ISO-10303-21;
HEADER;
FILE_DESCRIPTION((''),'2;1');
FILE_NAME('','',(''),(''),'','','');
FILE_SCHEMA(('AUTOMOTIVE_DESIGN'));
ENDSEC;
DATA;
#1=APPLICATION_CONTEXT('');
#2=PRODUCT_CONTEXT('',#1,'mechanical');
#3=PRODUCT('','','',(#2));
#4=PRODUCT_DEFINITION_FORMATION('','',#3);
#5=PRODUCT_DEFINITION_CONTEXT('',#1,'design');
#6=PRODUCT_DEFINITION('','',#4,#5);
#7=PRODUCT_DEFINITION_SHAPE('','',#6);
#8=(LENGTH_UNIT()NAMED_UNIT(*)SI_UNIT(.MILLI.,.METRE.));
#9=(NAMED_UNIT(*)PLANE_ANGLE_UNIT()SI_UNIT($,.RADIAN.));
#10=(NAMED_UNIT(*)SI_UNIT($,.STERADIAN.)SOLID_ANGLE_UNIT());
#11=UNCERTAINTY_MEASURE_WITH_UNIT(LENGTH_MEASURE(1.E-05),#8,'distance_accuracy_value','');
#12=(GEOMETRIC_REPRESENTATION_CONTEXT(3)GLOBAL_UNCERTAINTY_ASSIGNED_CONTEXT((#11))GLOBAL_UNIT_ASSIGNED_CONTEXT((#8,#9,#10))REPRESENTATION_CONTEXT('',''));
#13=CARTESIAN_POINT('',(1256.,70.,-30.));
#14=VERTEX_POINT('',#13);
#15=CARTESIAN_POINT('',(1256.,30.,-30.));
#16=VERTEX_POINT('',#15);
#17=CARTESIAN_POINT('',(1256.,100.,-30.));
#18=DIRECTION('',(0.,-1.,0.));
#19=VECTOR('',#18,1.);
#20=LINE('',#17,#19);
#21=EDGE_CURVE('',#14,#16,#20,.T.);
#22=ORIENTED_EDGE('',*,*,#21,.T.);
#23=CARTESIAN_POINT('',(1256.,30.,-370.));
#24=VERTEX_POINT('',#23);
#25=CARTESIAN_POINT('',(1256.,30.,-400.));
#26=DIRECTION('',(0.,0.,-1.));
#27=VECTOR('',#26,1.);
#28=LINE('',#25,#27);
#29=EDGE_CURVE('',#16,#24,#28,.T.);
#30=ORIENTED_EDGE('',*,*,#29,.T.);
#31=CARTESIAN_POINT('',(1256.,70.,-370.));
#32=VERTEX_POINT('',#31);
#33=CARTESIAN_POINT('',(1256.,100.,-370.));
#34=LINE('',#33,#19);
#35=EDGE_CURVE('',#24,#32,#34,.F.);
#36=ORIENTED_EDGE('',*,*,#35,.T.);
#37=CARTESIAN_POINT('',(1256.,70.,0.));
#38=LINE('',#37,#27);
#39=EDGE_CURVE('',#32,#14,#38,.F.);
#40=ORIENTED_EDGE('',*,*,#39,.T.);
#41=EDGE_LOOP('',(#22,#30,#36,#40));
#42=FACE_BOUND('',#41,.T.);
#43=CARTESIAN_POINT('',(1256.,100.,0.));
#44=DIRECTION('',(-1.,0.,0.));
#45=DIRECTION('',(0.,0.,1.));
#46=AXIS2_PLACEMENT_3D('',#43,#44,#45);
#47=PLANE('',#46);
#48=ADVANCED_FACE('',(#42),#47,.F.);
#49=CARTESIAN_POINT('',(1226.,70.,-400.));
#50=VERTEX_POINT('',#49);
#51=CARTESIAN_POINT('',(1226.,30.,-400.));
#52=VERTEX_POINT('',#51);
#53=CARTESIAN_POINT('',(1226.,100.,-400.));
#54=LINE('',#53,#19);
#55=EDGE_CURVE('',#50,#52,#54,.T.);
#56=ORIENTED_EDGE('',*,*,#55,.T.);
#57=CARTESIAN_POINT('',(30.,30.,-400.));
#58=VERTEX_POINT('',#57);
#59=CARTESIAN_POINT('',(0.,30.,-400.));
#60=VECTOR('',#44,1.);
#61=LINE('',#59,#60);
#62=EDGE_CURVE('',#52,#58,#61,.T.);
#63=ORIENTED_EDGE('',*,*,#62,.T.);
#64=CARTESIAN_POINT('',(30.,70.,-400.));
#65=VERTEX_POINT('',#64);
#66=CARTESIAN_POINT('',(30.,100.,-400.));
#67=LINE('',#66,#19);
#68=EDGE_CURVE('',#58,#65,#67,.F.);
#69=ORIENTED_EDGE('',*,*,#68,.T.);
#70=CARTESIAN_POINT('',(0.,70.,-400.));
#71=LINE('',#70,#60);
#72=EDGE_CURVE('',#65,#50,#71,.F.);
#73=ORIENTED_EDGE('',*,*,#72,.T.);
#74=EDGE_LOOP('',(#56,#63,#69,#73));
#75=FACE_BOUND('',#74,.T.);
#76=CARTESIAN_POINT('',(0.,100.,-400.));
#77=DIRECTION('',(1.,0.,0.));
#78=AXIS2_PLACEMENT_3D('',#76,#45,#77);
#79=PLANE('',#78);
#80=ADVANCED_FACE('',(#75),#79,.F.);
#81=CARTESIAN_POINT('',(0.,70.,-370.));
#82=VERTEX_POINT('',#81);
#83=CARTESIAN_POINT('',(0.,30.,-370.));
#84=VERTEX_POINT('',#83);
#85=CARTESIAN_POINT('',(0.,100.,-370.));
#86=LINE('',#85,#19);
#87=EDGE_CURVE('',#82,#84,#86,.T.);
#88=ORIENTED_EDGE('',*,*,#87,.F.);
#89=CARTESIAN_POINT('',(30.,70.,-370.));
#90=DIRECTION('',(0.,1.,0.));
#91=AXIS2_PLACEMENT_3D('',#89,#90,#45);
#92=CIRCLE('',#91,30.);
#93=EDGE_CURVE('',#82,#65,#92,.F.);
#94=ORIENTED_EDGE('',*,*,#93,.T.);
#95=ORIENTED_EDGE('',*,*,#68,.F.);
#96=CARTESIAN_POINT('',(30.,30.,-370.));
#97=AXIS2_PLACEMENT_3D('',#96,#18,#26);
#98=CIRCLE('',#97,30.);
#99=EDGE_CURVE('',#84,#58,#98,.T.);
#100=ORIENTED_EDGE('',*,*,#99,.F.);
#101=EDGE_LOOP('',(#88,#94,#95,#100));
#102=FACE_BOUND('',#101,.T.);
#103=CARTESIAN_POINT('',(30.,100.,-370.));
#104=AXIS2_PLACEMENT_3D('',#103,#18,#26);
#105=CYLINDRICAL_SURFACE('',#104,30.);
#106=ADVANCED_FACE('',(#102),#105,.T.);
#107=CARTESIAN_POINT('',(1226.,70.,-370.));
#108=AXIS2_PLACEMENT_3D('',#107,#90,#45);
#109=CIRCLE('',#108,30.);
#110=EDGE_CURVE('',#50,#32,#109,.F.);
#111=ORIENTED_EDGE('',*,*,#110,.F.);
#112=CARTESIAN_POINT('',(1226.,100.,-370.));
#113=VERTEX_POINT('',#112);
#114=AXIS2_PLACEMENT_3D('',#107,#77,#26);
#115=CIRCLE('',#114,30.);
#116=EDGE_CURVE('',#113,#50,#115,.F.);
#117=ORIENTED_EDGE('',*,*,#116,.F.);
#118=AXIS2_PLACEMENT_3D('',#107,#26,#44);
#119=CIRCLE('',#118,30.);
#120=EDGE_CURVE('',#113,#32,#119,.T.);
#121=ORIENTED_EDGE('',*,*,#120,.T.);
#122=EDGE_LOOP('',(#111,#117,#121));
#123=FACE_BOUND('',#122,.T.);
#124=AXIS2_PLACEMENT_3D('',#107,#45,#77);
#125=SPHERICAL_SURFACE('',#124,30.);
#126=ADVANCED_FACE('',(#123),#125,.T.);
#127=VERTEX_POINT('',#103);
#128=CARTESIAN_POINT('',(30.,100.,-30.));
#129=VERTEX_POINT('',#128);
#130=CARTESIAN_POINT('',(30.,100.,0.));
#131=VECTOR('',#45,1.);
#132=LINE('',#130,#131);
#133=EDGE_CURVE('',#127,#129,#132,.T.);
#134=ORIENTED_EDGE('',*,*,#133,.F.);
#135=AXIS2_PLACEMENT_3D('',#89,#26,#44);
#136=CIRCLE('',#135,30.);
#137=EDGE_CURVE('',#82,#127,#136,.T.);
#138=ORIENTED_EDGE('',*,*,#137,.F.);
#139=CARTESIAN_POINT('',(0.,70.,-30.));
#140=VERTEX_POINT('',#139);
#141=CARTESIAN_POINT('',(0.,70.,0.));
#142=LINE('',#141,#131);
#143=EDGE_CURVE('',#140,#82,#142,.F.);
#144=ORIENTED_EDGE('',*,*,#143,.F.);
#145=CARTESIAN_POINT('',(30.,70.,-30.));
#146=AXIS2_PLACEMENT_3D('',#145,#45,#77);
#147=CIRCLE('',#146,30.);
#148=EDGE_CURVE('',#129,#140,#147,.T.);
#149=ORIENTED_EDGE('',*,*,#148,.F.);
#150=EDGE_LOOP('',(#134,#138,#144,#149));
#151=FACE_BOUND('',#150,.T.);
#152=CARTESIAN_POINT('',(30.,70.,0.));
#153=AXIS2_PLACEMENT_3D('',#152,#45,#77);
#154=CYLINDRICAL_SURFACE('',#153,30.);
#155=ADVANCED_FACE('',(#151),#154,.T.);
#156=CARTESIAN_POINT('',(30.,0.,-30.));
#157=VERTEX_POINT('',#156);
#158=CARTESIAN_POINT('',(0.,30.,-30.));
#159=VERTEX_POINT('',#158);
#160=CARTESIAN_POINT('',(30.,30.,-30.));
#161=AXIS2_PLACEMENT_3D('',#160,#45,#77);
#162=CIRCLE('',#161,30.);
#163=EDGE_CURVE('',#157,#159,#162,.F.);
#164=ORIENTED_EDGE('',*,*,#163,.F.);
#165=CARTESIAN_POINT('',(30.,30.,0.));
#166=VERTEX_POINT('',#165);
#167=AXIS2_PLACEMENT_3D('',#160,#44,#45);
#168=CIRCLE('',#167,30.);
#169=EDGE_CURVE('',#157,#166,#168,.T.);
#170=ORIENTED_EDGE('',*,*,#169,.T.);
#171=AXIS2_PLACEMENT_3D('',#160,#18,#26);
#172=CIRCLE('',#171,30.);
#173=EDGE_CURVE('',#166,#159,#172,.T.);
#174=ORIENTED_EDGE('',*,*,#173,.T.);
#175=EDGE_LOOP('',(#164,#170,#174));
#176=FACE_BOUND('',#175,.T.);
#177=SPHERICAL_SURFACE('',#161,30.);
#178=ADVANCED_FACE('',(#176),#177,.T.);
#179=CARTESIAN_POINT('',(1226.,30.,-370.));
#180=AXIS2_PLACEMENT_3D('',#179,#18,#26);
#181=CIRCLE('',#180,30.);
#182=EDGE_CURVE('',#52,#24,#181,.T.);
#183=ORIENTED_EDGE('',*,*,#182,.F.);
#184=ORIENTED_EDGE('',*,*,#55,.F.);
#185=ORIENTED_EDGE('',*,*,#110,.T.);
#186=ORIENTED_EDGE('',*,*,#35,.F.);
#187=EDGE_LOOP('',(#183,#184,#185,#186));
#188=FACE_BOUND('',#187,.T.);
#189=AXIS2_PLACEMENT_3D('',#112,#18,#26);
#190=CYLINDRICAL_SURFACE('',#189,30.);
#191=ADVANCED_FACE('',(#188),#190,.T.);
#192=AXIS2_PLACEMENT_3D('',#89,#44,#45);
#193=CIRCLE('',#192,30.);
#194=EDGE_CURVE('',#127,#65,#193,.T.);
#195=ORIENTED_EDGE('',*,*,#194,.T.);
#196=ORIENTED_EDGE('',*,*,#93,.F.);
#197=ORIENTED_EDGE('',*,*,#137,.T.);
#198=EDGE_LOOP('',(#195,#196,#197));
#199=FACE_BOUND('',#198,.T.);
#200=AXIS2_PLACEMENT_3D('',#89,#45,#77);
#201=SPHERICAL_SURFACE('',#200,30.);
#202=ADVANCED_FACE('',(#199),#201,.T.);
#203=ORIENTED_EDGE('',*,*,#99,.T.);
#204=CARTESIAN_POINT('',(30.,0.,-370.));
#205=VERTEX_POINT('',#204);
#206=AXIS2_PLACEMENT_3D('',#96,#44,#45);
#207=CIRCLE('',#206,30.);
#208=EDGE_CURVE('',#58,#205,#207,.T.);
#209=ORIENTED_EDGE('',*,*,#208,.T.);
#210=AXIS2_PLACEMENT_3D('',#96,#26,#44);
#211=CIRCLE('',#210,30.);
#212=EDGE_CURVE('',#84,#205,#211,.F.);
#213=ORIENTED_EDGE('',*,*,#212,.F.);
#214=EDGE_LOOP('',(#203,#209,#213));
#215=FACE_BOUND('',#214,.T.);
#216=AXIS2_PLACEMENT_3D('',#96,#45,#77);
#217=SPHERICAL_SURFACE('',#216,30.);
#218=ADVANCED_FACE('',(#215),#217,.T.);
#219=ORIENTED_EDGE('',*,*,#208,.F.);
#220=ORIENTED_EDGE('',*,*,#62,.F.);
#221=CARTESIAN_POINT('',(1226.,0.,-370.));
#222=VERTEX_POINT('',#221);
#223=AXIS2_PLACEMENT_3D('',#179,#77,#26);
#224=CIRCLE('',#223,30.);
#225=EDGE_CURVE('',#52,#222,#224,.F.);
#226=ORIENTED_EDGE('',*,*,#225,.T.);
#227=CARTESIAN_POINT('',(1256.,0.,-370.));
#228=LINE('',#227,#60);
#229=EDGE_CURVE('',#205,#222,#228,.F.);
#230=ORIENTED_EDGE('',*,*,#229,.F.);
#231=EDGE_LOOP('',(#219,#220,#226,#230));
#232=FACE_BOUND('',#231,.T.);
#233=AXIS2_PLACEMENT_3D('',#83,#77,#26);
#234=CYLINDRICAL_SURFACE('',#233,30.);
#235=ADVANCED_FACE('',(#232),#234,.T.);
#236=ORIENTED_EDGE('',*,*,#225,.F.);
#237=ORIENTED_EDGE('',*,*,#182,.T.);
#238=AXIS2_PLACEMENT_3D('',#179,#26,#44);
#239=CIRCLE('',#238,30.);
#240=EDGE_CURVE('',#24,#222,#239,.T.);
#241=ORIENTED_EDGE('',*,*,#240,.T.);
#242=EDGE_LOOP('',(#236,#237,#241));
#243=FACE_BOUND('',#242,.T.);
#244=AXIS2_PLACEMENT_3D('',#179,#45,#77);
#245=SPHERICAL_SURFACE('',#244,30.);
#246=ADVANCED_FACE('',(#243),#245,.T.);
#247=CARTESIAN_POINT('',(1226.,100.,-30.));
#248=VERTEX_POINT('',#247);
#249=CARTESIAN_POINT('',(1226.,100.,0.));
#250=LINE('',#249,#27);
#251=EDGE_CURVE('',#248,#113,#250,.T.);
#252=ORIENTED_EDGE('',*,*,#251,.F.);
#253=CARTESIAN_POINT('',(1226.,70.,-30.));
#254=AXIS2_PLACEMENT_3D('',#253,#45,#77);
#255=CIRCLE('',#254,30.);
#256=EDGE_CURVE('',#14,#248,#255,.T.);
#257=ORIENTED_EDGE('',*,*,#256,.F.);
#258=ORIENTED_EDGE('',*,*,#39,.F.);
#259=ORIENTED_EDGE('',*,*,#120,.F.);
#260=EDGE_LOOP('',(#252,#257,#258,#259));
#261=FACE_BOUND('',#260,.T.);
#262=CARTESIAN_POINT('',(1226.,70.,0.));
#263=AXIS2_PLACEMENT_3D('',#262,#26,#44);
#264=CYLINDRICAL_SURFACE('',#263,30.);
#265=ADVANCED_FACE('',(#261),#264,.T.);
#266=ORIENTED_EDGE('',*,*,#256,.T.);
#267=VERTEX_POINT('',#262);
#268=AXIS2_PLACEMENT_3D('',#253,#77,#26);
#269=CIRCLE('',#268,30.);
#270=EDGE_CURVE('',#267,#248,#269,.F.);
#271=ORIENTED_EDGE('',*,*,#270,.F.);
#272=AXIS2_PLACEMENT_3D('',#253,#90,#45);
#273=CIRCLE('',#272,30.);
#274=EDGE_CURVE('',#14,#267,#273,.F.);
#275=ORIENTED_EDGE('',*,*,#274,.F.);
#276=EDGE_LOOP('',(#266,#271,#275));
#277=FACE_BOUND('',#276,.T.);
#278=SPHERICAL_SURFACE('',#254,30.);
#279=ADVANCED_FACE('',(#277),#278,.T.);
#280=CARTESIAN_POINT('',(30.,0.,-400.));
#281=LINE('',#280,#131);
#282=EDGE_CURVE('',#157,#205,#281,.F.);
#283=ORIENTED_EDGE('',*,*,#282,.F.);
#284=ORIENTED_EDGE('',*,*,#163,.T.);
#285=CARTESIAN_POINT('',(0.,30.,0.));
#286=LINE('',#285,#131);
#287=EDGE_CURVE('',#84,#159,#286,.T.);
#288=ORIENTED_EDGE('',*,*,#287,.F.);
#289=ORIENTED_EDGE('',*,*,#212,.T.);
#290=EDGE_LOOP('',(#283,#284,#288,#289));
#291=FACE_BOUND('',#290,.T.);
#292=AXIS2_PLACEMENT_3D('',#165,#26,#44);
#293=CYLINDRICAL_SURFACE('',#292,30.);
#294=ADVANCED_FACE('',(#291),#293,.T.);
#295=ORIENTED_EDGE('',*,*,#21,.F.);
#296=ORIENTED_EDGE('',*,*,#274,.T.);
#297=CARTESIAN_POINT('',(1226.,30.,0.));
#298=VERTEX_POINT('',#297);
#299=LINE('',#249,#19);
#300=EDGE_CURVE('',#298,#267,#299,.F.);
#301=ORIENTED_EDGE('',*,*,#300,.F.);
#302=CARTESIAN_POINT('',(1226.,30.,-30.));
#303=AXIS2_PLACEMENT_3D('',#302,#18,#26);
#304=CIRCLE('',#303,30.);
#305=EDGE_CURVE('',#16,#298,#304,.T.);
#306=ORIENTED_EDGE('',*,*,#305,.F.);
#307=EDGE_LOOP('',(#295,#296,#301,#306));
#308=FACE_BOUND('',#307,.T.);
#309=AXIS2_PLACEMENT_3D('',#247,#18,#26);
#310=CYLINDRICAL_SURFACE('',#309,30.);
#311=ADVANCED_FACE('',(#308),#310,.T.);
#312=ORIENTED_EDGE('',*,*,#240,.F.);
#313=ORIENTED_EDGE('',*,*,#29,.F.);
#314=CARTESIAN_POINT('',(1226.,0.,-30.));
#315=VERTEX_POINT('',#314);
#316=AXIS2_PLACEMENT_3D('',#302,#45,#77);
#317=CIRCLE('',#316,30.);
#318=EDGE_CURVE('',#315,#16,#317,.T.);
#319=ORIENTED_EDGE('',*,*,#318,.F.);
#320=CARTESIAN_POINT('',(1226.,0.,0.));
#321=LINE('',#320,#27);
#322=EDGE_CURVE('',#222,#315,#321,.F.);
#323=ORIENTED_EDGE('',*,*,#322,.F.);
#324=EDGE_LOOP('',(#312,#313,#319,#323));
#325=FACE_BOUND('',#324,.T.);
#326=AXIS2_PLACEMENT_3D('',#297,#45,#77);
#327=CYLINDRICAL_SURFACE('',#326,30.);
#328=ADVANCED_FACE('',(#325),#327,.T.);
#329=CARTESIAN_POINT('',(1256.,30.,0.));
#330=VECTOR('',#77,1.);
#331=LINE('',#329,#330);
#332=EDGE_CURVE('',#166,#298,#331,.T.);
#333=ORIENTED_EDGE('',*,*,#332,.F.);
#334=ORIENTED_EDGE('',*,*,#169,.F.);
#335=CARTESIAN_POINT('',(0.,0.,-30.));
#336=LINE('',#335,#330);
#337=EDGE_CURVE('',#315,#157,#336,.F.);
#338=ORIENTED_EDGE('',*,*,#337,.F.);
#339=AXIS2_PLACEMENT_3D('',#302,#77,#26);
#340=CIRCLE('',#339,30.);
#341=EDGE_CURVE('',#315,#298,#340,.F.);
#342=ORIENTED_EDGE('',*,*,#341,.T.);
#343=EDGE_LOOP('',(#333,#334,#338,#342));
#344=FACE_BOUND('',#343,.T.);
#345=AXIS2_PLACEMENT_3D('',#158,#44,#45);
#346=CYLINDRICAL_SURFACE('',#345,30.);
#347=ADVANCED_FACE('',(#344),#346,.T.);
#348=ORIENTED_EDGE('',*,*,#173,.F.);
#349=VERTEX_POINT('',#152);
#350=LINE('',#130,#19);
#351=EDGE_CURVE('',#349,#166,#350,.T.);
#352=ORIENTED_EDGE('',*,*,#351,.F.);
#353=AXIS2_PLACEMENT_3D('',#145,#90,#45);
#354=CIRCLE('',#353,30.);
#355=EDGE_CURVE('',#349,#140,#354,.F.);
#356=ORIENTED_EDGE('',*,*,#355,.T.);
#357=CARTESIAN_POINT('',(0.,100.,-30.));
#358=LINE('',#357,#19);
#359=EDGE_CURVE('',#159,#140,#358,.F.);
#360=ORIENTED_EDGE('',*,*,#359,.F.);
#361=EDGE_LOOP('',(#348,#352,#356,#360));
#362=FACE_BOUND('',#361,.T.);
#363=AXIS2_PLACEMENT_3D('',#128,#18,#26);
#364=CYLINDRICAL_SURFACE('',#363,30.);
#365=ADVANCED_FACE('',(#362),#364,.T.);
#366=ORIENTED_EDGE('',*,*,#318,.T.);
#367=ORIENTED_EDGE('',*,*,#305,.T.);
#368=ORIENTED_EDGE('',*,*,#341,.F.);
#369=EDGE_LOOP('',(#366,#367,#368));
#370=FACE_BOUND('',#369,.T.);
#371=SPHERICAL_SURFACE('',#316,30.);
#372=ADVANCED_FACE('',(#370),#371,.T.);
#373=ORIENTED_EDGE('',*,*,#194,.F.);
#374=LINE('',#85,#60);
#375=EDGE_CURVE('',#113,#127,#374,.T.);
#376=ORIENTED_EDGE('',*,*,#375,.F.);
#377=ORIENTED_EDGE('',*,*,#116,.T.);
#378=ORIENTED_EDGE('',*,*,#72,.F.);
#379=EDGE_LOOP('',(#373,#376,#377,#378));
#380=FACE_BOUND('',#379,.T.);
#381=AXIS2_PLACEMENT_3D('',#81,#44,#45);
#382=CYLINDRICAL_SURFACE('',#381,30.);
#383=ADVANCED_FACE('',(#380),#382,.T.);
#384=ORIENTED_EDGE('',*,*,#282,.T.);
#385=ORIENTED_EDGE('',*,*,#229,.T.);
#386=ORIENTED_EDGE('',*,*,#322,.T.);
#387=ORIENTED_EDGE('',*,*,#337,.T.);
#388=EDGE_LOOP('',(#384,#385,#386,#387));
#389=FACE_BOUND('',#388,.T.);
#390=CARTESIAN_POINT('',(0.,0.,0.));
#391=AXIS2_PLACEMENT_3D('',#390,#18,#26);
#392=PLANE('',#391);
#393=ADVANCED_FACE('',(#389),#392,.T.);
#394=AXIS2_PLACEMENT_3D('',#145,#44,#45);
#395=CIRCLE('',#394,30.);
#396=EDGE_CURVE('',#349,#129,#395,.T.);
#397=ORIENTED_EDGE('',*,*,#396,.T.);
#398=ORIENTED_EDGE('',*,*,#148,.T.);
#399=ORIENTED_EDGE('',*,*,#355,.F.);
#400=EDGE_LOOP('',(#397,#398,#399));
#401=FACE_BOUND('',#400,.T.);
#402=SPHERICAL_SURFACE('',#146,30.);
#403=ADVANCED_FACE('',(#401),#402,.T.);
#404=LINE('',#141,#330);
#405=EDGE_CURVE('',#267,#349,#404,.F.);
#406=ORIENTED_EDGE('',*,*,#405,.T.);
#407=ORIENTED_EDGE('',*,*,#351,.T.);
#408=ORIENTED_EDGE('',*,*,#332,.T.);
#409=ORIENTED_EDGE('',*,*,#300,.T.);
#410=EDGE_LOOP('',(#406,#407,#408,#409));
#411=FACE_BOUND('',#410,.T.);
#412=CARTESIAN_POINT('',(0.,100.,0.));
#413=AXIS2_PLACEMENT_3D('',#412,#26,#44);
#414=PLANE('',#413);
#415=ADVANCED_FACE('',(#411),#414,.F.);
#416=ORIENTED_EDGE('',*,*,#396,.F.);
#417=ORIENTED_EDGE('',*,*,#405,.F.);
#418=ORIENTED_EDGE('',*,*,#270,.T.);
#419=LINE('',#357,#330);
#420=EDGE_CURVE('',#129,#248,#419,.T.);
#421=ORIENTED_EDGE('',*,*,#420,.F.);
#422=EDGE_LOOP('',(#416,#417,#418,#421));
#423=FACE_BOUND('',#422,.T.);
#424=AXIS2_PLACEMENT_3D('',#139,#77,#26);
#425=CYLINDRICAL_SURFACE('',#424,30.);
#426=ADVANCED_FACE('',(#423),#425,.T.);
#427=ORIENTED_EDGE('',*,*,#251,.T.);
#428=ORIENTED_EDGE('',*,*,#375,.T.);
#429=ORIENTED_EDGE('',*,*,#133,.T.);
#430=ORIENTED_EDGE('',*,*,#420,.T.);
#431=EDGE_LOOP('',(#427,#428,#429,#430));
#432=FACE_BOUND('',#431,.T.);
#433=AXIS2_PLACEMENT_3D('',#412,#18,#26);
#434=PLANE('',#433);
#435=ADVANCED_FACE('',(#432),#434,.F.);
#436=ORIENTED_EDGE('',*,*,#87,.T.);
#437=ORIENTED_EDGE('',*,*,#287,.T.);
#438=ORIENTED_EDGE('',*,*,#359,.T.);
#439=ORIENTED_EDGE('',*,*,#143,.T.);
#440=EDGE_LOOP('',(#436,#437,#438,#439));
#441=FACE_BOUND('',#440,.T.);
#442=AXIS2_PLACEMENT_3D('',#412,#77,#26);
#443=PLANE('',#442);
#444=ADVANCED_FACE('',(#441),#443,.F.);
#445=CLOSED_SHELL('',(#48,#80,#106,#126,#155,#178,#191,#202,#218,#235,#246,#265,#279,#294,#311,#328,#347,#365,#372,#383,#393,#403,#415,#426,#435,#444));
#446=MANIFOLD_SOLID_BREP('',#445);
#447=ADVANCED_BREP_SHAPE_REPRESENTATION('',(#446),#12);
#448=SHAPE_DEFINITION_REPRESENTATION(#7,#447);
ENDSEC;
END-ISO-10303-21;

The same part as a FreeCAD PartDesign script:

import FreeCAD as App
import Part
import Sketcher

V = App.Vector
Q = App.Units.Quantity


def add_polygon(sketch, points):
    """Adds a closed chain of lines whose ends are joined by coincident constraints."""
    first, n = sketch.GeometryCount, len(points)
    for a, b in zip(points, points[1:] + points[:1]):
        sketch.addGeometry(Part.LineSegment(App.Vector(*a, 0), App.Vector(*b, 0)), False)
    for i in range(n):
        sketch.addConstraint(Sketcher.Constraint("Coincident", first + i, 2, first + (i + 1) % n, 1))

doc = App.newDocument("Part")
body = doc.addObject("PartDesign::Body", "Body")

sketch1 = body.newObject("Sketcher::SketchObject", "Sketch")
sketch1.AttachmentSupport = (doc.getObject("XZ_Plane"), [""])
sketch1.MapMode = "FlatFace"
add_polygon(sketch1, [(0, -400), (0, 0), (1256, 0), (1256, -400)])
sketch1.addConstraint(Sketcher.Constraint("Vertical", 0))
sketch1.addConstraint(Sketcher.Constraint("Horizontal", 1))
sketch1.addConstraint(Sketcher.Constraint("Vertical", 2))
sketch1.addConstraint(Sketcher.Constraint("Horizontal", 3))
sketch1.addConstraint(Sketcher.Constraint("Coincident", 0, 2, -1, 1))
sketch1.addConstraint(Sketcher.Constraint("DistanceX", 1, 1, 1, 2, Q("1256 mm")))
sketch1.addConstraint(Sketcher.Constraint("DistanceY", 0, 1, 0, 2, Q("400 mm")))
pad1 = body.newObject("PartDesign::Pad", "Pad")
pad1.Profile = sketch1
pad1.Length = 100
pad1.Reversed = True
doc.recompute()

fillet = body.newObject("PartDesign::Fillet", "Fillet")
fillet.Base = (pad1, ["Edge1"])
fillet.UseAllEdges = True
fillet.Radius = 30

doc.recompute()
